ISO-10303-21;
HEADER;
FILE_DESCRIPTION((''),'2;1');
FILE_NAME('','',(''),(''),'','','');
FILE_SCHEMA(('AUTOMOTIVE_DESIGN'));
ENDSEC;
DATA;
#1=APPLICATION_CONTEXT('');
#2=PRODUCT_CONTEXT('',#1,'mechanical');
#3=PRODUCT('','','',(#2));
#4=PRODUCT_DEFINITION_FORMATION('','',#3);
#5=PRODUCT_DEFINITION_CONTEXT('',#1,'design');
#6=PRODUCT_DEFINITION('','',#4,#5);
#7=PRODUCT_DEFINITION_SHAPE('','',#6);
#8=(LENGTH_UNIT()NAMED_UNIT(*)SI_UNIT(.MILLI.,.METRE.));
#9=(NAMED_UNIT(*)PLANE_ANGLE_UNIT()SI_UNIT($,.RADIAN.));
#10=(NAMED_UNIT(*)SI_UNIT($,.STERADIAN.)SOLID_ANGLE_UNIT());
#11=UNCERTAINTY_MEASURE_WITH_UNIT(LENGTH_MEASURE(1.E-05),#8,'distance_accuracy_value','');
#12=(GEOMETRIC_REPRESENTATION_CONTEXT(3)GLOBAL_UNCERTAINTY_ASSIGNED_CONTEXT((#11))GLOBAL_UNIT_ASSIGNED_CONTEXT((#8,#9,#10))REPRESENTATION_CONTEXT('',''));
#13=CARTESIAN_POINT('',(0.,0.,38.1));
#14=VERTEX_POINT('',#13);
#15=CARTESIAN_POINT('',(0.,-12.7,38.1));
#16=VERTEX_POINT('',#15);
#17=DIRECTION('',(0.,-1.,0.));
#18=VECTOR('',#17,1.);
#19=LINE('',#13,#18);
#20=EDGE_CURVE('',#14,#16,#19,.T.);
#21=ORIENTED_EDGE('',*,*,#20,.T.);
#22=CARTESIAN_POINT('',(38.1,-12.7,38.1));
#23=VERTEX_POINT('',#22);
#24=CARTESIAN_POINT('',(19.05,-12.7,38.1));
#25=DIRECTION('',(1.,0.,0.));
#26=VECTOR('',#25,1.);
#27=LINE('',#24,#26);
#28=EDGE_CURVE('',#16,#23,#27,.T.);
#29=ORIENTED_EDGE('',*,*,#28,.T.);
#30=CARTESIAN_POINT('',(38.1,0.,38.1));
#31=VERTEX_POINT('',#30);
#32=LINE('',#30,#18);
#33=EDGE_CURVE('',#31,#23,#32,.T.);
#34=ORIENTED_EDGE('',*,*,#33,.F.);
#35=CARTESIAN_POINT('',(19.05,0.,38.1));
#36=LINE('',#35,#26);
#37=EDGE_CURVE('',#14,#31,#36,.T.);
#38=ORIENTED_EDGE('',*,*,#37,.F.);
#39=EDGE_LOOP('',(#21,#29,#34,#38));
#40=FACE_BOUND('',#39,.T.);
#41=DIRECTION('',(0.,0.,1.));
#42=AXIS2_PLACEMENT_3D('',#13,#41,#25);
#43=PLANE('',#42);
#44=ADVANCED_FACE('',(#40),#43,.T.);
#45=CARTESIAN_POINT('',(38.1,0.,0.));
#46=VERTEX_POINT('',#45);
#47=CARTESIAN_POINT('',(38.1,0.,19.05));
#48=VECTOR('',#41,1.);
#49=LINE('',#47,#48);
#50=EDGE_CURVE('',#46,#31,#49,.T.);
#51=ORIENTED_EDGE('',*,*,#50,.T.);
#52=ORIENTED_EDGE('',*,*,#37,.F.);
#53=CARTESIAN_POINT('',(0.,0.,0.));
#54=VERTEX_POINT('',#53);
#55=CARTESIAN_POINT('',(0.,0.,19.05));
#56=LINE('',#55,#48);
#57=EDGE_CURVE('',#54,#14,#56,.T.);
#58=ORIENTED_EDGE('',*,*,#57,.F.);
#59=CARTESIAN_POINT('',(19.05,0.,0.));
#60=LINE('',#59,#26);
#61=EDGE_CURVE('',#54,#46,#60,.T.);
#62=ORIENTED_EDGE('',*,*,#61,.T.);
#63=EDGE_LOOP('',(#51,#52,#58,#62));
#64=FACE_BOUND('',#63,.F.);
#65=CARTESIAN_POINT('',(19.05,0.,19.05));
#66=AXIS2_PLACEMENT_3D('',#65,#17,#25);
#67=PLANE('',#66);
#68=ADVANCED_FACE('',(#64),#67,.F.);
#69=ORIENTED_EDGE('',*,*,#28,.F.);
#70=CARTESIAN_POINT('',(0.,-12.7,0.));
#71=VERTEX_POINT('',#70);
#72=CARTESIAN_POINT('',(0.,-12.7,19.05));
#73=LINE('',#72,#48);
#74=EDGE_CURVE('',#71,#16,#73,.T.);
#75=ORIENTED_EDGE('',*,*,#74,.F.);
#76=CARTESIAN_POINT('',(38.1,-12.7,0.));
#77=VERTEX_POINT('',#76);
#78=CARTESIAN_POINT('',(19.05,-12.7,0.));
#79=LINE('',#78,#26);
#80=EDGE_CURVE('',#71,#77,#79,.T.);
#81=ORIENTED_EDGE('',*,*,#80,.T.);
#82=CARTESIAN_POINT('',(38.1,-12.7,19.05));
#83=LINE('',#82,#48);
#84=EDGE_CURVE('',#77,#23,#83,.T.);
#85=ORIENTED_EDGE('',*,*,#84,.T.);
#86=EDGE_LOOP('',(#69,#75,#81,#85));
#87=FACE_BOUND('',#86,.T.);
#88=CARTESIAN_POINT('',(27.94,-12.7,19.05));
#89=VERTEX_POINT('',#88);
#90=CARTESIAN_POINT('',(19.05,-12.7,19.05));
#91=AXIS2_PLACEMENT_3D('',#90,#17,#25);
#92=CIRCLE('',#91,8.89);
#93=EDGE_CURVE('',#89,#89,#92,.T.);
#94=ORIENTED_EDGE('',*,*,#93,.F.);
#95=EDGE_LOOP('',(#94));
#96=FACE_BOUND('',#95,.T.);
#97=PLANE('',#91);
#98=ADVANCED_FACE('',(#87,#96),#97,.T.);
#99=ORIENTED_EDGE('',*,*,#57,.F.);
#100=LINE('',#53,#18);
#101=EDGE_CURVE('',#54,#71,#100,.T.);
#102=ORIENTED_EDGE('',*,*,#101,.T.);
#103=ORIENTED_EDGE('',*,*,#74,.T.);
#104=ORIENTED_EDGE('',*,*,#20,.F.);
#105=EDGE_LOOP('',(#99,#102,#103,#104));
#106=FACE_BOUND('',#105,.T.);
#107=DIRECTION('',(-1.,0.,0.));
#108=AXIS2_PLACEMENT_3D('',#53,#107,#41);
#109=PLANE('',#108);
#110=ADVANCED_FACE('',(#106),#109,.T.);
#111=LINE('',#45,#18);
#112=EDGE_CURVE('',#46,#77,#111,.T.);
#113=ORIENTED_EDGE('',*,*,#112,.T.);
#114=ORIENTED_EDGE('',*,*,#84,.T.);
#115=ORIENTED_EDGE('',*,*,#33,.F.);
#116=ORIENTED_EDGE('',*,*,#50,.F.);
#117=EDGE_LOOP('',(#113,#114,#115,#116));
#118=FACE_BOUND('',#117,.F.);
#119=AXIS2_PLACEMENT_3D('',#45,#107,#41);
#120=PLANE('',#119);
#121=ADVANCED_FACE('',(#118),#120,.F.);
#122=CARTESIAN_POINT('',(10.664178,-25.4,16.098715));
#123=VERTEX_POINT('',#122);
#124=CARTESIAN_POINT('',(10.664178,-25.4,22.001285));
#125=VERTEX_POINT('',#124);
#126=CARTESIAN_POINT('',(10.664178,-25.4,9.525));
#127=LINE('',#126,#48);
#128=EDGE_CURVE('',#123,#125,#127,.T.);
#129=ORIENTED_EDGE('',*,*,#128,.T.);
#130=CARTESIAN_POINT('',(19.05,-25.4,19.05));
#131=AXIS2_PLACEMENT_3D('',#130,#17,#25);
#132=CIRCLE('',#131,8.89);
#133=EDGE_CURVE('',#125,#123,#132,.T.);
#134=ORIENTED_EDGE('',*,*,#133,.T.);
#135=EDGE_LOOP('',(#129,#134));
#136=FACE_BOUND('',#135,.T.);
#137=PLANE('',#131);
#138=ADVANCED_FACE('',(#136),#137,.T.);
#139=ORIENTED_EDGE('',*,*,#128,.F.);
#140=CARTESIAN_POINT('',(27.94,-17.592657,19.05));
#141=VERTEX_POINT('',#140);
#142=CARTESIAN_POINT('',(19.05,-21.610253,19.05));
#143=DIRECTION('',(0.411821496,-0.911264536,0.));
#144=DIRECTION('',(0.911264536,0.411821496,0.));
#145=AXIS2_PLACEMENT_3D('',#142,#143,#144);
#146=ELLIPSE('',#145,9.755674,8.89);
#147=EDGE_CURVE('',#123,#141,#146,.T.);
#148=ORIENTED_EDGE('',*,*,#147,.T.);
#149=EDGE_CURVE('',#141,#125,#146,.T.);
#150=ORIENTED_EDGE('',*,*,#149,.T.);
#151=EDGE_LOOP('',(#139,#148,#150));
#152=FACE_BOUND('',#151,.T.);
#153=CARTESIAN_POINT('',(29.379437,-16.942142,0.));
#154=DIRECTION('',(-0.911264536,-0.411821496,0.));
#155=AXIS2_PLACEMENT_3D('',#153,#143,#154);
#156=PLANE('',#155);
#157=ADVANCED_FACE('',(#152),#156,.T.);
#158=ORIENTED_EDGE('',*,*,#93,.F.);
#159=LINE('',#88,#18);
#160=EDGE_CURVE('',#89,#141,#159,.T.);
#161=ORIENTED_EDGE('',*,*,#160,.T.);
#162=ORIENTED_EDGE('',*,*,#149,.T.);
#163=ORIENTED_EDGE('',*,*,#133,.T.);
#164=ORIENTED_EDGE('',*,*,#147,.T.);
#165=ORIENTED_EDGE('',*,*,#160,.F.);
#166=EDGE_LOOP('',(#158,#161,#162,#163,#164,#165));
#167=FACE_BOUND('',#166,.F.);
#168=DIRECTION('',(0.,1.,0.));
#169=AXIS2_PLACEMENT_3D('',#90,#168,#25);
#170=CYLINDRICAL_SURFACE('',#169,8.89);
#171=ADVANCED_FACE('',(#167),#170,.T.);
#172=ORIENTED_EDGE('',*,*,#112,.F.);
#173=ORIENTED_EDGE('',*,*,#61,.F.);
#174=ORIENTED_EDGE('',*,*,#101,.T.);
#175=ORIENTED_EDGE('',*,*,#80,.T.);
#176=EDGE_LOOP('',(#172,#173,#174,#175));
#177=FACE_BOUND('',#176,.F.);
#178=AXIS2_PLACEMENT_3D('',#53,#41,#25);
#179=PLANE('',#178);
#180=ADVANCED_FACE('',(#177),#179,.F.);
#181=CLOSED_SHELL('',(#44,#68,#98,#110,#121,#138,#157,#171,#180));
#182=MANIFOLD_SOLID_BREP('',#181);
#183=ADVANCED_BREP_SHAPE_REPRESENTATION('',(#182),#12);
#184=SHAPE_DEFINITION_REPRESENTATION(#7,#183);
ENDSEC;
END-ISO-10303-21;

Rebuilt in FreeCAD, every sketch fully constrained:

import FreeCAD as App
import Part
import Sketcher
Q = App.Units.Quantity


def add_polygon(sketch, points):
    """Adds a closed chain of lines whose ends are joined by coincident constraints."""
    first, n = sketch.GeometryCount, len(points)
    for a, b in zip(points, points[1:] + points[:1]):
        sketch.addGeometry(Part.LineSegment(App.Vector(*a, 0), App.Vector(*b, 0)), False)
    for i in range(n):
        sketch.addConstraint(Sketcher.Constraint("Coincident", first + i, 2, first + (i + 1) % n, 1))

doc = App.newDocument("Part")
body = doc.addObject("PartDesign::Body", "Body")

# Sketch on XZ plane
sketch1 = doc.addObject("Sketcher::SketchObject", "Sketch")
body.addObject(sketch1)
sketch1.AttachmentSupport = (doc.XZ_Plane, [""])
sketch1.MapMode = "FlatFace"
add_polygon(sketch1, [(0, 38), (0, 0), (38, 0), (38, 38)])  # lines 0-3
sketch1.addConstraint(Sketcher.Constraint("Vertical", 0))
sketch1.addConstraint(Sketcher.Constraint("Horizontal", 1))
sketch1.addConstraint(Sketcher.Constraint("Vertical", 2))
sketch1.addConstraint(Sketcher.Constraint("Horizontal", 3))
sketch1.addConstraint(Sketcher.Constraint("Coincident", 0, 2, -1, 1))
sketch1.addConstraint(Sketcher.Constraint("Equal", 3, 0))
sketch1.addConstraint(Sketcher.Constraint("DistanceX", 1, 1, 1, 2, Q("1.5 in")))
pad1 = doc.addObject("PartDesign::Pad", "Pad")
body.addObject(pad1)
pad1.Profile = sketch1
pad1.Length = Q("0.5 in")

# Sketch on XZ plane
sketch2 = doc.addObject("Sketcher::SketchObject", "Sketch001")
body.addObject(sketch2)
sketch2.AttachmentSupport = (doc.XZ_Plane, [""])
sketch2.MapMode = "FlatFace"
sketch2.AttachmentOffset = App.Placement(App.Vector(0, 0, 0.5 * 25.4), App.Rotation())
sketch2.addGeometry(Part.Circle(App.Vector(19, 19, 0), App.Vector(0, 0, 1), 9), False)
sketch2.addConstraint(Sketcher.Constraint("Diameter", 0, Q("0.7 in")))
sketch2.addConstraint(Sketcher.Constraint("DistanceX", -1, 1, 0, 3, Q("0.75 in")))
sketch2.addConstraint(Sketcher.Constraint("DistanceY", -1, 1, 0, 3, Q("0.75 in")))
pad2 = doc.addObject("PartDesign::Pad", "Pad001")
body.addObject(pad2)
pad2.Profile = sketch2
pad2.Length = Q("0.5 in")

# Sketch on XY plane
sketch3 = doc.addObject("Sketcher::SketchObject", "Sketch002")
body.addObject(sketch3)
sketch3.AttachmentSupport = (doc.XY_Plane, [""])
sketch3.MapMode = "FlatFace"
add_polygon(sketch3, [(29, -17), (9, -26), (29, -26)])  # lines 0-2
sketch3.addConstraint(Sketcher.Constraint("Horizontal", 1))
sketch3.addConstraint(Sketcher.Constraint("Vertical", 2))
sketch3.addConstraint(Sketcher.Constraint("DistanceX", 1, 1, 1, 2, 20.369742))
sketch3.addConstraint(Sketcher.Constraint("DistanceY", 0, 2, -1, 1, 26.147699))
sketch3.addConstraint(Sketcher.Constraint("Distance", 0, 22.35327))
sketch3.addConstraint(Sketcher.Constraint("DistanceX", -1, 1, 0, 2, 9.009695))
pocket1 = doc.addObject("PartDesign::Pocket", "Pocket")
body.addObject(pocket1)
pocket1.Profile = sketch3
pocket1.Length = Q("10 in")
pocket1.Reversed = True

doc.recompute()
